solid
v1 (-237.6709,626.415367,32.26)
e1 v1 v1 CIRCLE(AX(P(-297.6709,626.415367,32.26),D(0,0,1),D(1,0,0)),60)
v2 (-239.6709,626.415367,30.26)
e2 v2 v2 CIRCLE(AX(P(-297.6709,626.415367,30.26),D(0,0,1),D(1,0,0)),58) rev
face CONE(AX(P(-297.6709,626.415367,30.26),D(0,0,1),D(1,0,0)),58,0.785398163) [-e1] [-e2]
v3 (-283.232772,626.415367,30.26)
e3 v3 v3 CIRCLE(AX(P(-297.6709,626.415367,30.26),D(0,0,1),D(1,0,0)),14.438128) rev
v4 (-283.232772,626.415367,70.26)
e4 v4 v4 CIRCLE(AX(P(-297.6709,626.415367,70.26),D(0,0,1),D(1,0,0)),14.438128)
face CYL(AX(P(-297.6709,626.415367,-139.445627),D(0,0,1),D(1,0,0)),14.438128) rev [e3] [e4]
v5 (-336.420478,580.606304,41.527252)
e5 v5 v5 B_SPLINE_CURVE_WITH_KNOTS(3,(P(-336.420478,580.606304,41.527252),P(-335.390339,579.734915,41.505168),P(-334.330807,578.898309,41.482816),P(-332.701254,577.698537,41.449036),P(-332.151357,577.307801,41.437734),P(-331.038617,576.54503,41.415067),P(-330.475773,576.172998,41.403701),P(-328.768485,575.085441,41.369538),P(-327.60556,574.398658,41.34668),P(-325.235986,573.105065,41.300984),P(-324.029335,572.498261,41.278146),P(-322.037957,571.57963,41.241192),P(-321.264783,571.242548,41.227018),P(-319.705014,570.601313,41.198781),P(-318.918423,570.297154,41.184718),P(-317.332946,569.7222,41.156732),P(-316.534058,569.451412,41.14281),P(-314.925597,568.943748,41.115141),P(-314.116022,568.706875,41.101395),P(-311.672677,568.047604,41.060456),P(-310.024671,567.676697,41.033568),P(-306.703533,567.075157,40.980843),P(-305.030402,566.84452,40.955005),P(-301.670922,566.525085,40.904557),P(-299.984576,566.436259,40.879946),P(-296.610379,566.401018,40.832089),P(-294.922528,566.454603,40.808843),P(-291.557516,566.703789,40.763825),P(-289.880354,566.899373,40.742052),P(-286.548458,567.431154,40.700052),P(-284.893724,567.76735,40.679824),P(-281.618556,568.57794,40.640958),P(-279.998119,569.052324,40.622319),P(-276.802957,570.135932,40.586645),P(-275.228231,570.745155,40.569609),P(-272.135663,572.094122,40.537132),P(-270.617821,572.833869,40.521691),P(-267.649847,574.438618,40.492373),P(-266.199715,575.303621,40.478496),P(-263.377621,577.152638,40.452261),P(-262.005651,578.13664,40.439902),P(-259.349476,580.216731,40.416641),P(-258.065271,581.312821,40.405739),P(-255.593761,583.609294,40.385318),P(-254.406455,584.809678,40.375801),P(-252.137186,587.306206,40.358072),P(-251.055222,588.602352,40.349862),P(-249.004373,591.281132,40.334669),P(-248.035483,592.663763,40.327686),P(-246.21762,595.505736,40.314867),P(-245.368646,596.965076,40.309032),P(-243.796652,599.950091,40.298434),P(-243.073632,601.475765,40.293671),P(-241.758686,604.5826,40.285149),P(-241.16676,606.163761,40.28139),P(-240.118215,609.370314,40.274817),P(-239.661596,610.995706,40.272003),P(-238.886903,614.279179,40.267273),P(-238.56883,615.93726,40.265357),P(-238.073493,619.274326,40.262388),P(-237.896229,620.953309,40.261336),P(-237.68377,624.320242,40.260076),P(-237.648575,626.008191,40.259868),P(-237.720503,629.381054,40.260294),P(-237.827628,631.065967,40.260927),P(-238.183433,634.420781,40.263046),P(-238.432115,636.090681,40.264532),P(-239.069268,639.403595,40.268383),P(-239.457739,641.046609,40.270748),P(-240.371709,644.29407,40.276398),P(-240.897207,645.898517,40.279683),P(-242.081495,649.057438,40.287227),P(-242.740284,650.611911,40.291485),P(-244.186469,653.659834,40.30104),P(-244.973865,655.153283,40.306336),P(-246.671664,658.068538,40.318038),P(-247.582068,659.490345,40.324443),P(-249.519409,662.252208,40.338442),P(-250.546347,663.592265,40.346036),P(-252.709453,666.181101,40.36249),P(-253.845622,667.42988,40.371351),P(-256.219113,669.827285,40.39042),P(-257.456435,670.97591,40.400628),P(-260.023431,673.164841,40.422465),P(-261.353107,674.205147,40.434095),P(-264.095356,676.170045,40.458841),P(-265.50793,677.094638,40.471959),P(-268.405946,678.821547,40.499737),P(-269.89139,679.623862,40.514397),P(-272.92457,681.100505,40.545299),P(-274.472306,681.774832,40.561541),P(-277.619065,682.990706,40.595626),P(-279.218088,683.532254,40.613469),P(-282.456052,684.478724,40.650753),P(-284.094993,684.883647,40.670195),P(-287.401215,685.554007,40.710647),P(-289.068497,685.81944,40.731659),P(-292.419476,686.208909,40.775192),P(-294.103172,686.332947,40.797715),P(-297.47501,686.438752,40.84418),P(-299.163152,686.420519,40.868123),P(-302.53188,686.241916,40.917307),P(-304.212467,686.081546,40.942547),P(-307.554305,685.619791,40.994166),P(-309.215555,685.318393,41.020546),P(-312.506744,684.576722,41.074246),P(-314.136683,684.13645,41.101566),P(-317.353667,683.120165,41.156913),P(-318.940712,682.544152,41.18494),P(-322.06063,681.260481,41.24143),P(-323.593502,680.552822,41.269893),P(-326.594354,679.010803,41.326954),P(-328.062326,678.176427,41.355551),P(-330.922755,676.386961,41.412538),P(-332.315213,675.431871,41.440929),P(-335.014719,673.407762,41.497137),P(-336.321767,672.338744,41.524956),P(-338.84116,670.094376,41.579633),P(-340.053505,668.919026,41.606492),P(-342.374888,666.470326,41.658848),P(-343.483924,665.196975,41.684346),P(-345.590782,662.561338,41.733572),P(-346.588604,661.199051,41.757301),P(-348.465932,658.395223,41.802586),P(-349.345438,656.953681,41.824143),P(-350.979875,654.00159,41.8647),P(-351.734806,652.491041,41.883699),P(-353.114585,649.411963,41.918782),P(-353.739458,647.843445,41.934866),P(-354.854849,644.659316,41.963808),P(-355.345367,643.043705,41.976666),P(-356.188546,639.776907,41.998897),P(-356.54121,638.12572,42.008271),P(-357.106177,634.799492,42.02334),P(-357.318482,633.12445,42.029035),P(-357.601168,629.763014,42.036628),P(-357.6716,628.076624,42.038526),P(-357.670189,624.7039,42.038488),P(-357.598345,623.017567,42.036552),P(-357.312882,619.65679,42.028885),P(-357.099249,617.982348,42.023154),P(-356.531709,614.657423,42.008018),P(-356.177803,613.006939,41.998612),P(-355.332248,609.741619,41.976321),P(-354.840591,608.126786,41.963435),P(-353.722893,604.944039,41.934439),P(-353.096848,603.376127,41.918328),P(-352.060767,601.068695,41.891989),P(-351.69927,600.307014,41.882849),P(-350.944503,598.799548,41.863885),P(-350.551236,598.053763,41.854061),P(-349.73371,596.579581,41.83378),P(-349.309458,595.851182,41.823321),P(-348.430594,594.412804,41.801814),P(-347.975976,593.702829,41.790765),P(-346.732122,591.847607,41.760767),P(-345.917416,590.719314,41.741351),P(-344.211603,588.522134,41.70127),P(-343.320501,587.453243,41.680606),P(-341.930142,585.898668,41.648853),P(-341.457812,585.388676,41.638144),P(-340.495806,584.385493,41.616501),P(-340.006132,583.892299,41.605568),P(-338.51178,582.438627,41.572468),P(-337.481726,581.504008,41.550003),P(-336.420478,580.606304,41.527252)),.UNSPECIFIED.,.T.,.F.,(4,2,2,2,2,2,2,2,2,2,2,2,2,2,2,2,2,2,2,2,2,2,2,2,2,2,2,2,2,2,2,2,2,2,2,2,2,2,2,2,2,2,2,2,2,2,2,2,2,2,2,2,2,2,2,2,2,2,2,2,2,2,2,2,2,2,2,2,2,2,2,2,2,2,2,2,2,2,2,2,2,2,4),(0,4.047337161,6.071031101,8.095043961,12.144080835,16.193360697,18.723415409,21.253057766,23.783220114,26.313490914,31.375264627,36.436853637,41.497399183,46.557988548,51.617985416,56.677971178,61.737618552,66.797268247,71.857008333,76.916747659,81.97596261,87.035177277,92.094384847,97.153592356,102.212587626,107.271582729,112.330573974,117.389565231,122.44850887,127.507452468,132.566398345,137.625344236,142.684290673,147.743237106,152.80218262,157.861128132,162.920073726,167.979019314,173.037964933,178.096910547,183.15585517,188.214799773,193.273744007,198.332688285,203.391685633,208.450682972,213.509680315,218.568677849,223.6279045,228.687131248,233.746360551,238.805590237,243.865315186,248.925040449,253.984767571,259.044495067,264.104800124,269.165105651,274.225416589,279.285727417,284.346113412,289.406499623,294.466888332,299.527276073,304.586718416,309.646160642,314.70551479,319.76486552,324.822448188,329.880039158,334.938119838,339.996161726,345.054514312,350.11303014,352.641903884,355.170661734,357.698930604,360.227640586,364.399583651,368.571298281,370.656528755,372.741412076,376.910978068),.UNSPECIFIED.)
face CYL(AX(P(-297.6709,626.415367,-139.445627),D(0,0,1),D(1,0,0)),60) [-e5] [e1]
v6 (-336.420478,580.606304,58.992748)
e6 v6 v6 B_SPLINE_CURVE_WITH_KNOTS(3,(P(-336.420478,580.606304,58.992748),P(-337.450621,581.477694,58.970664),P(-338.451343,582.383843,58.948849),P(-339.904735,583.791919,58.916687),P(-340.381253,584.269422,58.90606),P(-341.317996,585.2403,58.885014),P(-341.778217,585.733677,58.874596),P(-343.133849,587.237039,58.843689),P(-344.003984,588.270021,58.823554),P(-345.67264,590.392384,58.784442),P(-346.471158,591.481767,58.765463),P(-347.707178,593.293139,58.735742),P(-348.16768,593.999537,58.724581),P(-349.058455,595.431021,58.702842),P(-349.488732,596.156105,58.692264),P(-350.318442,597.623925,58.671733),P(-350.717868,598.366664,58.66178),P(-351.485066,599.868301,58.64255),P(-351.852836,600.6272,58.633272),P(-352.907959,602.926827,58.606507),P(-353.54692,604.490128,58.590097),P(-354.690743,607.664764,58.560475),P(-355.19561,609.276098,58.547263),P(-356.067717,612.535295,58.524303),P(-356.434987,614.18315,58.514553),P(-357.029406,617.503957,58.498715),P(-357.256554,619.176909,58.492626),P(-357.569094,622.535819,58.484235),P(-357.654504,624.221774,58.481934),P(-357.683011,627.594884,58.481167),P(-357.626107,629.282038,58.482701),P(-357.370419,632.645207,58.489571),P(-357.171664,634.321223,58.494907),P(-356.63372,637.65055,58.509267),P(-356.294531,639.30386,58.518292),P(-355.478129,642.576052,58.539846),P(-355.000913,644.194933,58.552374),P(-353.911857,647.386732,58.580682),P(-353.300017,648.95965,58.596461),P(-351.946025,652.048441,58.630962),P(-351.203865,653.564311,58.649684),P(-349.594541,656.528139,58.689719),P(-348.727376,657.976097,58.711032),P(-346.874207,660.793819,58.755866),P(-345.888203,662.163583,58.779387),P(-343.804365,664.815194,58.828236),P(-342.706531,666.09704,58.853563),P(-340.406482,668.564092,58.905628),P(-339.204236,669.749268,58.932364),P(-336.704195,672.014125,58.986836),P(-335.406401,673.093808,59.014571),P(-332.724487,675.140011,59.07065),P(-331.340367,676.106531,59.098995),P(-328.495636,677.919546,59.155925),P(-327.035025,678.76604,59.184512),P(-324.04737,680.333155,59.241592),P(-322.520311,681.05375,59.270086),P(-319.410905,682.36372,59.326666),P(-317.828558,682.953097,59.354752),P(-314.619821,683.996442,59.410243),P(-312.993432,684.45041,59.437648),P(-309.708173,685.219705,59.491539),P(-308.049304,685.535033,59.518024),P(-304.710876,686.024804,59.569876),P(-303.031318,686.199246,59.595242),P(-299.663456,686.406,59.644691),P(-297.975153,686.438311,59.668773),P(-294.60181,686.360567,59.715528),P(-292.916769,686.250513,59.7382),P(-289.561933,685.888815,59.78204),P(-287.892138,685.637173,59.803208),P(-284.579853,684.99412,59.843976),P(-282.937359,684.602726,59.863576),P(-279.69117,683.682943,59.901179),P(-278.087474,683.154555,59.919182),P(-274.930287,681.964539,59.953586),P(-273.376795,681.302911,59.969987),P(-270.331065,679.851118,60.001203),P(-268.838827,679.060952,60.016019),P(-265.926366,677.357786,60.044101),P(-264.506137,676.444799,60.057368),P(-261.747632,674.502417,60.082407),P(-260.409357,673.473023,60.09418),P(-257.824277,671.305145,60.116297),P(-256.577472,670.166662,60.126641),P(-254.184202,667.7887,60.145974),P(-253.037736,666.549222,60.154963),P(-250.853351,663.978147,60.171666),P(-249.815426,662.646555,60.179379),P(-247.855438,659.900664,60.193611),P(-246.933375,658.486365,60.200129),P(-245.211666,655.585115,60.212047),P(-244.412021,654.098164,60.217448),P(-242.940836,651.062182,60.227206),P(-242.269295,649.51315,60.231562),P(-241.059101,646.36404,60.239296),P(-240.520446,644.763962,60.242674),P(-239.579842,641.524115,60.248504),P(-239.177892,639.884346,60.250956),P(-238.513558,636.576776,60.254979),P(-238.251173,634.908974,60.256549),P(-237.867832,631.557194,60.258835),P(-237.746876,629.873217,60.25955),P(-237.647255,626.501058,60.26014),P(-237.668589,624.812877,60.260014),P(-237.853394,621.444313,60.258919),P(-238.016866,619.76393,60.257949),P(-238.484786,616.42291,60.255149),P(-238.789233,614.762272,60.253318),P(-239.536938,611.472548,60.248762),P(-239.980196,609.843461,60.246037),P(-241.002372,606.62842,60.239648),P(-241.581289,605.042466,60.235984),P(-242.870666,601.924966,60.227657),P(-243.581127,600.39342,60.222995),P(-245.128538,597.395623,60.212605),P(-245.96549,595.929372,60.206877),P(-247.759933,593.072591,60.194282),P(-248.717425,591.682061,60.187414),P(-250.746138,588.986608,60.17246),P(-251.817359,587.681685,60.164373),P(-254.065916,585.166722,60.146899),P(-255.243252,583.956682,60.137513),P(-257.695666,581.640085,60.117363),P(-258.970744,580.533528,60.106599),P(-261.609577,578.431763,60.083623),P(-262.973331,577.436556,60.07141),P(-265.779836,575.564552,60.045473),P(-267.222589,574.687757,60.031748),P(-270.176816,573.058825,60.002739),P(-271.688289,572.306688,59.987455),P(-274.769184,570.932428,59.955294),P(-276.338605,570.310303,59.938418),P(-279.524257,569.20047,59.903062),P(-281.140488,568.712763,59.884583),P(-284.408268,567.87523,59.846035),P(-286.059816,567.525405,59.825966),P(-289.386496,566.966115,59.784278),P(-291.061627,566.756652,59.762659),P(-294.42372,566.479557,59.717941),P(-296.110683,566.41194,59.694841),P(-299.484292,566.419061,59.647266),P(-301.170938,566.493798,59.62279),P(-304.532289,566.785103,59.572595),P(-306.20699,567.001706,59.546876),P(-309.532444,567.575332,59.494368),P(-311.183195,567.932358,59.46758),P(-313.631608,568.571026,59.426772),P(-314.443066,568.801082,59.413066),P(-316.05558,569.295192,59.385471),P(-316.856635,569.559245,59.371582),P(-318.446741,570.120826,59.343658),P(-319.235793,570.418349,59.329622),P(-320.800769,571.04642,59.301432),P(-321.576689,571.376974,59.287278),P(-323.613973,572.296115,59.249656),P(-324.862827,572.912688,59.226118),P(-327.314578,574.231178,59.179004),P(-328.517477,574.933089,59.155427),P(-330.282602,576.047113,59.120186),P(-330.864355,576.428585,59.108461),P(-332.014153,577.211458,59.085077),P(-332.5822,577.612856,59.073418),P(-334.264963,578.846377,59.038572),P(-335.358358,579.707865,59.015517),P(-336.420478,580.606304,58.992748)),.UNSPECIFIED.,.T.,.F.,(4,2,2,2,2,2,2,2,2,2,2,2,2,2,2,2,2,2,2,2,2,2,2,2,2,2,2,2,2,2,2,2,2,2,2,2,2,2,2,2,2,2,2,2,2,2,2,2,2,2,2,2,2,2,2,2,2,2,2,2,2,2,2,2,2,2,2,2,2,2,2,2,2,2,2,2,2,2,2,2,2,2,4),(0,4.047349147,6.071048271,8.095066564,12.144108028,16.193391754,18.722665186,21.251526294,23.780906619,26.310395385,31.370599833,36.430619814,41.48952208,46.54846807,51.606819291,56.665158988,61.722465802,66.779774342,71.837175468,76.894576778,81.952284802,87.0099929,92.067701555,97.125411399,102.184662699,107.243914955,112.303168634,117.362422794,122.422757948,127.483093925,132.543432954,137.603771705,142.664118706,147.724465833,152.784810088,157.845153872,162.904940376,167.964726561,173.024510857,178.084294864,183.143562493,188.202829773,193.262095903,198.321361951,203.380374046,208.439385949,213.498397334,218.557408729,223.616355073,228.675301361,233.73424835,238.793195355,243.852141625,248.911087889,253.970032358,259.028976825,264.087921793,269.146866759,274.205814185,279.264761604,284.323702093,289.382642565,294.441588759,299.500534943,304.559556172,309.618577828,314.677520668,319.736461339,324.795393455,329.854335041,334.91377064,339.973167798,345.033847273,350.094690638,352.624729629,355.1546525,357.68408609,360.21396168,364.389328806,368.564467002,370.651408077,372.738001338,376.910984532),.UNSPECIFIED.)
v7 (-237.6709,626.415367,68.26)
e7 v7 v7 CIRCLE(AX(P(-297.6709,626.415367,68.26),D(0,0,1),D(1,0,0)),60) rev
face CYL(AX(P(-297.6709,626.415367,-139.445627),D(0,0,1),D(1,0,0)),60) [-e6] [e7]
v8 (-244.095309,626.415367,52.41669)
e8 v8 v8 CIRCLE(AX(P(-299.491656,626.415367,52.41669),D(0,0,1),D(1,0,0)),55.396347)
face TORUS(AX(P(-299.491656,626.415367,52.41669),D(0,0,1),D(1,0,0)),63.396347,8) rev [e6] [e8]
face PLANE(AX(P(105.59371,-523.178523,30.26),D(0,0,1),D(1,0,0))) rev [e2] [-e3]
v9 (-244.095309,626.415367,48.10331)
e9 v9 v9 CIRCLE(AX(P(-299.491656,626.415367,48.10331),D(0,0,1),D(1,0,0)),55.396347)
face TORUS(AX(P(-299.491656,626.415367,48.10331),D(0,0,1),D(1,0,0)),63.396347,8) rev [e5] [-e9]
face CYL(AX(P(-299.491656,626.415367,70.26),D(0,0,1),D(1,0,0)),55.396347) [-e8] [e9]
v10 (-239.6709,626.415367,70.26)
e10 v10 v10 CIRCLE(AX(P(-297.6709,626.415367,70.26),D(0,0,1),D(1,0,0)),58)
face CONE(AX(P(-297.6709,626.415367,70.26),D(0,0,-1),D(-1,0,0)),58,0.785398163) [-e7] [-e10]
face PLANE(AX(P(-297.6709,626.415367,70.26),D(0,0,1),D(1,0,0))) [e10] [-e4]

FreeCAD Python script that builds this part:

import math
import FreeCAD as App
import Part
import Sketcher

V = App.Vector
Q = App.Units.Quantity


def edges_at(feature, points):
    """Names of the edges that pass closest to the given points."""
    edges = feature.Shape.Edges
    near = lambda p: min(range(len(edges)), key=lambda i: edges[i].distToShape(Part.Vertex(*p))[0])
    return sorted({f"Edge{near(p) + 1}" for p in points})

doc = App.newDocument("Part")
body = doc.addObject("PartDesign::Body", "Body")

# Sketch on XY plane
sketch1 = body.newObject("Sketcher::SketchObject", "Sketch")
sketch1.AttachmentSupport = (doc.getObject("XY_Plane"), [""])
sketch1.MapMode = "FlatFace"
sketch1.AttachmentOffset = App.Placement(V(0, 0, 70.26), App.Rotation())
sketch1.addGeometry([
    Part.Circle(V(-297.6709, 626.415367, 0), V(0, 0, 1), 60),
    Part.Circle(V(-297.6709, 626.415367, 0), V(0, 0, 1), 14.438128),
], False)
sketch1.addConstraint([
    Sketcher.Constraint("Coincident", 1, 3, 0, 3),
    Sketcher.Constraint("Diameter", 0, Q("120 mm")),
    Sketcher.Constraint("Diameter", 1, Q("28.876255 mm")),
    Sketcher.Constraint("DistanceX", 0, 3, -1, 1, Q("297.6709 mm")),
    Sketcher.Constraint("DistanceY", -1, 1, 0, 3, Q("626.415367 mm")),
])
pad1 = body.newObject("PartDesign::Pad", "Pad")
pad1.Profile = sketch1
pad1.Length = 40
pad1.Reversed = True

# Sketch on XZ plane
sketch2 = body.newObject("Sketcher::SketchObject", "Sketch001")
sketch2.AttachmentSupport = (doc.getObject("XZ_Plane"), [""])
sketch2.MapMode = "FlatFace"
sketch2.AttachmentOffset = App.Placement(V(0, 0, -626.415367), App.Rotation())
sketch2.addGeometry([
    Part.LineSegment(V(-244.095309, 48.10331, 0), V(-244.095309, 52.41669, 0)),
    Part.ArcOfCircle(Part.Circle(V(-236.095309, 52.41669, 0), V(0, 0, 1), 8), math.radians(101.358595), math.radians(180)),
    Part.LineSegment(V(-237.6709, 60.26, 0), V(-237.6709, 40.26, 0)),
    Part.ArcOfCircle(Part.Circle(V(-236.095309, 48.10331, 0), V(0, 0, 1), 8), math.radians(-180), math.radians(-101.358595)),
], False)
sketch2.addGeometry(Part.LineSegment(V(-299.491656, 60.26, 0), V(-299.491656, 40.26, 0)), True)  # axis
sketch2.addConstraint([
    Sketcher.Constraint("Tangent", 0, 2, 1, 2),
    Sketcher.Constraint("Coincident", 1, 1, 2, 1),
    Sketcher.Constraint("Coincident", 2, 2, 3, 2),
    Sketcher.Constraint("Tangent", 3, 1, 0, 1),
    Sketcher.Constraint("Vertical", 0),
    Sketcher.Constraint("Vertical", 2),
    Sketcher.Constraint("Vertical", 4),
    Sketcher.Constraint("Equal", 1, 3),
    Sketcher.Constraint("Horizontal", 1, 1, 4, 1),
    Sketcher.Constraint("Horizontal", 2, 2, 4, 2),
    Sketcher.Constraint("Radius", 1, Q("8 mm")),
    Sketcher.Constraint("DistanceY", 2, 2, 2, 1, Q("20 mm")),
    Sketcher.Constraint("DistanceY", -1, 1, 1, 1, Q("60.26 mm")),
    Sketcher.Constraint("DistanceY", 0, 1, 0, 2, Q("4.31338 mm")),
    Sketcher.Constraint("DistanceX", 1, 1, -1, 1, Q("237.6709 mm")),
    Sketcher.Constraint("DistanceX", 4, 1, -1, 1, Q("299.491656 mm")),
])
groove = body.newObject("PartDesign::Groove", "Groove")
groove.Profile = sketch2
groove.ReferenceAxis = (sketch2, ["Axis0"])
groove.Angle = 360
doc.recompute()

chamfer = body.newObject("PartDesign::Chamfer", "Chamfer")
chamfer.Base = (groove, edges_at(groove, [(-357.671, 626.415, 70.26), (-357.671, 626.415, 30.26)]))
chamfer.Size = 2

doc.recompute()
